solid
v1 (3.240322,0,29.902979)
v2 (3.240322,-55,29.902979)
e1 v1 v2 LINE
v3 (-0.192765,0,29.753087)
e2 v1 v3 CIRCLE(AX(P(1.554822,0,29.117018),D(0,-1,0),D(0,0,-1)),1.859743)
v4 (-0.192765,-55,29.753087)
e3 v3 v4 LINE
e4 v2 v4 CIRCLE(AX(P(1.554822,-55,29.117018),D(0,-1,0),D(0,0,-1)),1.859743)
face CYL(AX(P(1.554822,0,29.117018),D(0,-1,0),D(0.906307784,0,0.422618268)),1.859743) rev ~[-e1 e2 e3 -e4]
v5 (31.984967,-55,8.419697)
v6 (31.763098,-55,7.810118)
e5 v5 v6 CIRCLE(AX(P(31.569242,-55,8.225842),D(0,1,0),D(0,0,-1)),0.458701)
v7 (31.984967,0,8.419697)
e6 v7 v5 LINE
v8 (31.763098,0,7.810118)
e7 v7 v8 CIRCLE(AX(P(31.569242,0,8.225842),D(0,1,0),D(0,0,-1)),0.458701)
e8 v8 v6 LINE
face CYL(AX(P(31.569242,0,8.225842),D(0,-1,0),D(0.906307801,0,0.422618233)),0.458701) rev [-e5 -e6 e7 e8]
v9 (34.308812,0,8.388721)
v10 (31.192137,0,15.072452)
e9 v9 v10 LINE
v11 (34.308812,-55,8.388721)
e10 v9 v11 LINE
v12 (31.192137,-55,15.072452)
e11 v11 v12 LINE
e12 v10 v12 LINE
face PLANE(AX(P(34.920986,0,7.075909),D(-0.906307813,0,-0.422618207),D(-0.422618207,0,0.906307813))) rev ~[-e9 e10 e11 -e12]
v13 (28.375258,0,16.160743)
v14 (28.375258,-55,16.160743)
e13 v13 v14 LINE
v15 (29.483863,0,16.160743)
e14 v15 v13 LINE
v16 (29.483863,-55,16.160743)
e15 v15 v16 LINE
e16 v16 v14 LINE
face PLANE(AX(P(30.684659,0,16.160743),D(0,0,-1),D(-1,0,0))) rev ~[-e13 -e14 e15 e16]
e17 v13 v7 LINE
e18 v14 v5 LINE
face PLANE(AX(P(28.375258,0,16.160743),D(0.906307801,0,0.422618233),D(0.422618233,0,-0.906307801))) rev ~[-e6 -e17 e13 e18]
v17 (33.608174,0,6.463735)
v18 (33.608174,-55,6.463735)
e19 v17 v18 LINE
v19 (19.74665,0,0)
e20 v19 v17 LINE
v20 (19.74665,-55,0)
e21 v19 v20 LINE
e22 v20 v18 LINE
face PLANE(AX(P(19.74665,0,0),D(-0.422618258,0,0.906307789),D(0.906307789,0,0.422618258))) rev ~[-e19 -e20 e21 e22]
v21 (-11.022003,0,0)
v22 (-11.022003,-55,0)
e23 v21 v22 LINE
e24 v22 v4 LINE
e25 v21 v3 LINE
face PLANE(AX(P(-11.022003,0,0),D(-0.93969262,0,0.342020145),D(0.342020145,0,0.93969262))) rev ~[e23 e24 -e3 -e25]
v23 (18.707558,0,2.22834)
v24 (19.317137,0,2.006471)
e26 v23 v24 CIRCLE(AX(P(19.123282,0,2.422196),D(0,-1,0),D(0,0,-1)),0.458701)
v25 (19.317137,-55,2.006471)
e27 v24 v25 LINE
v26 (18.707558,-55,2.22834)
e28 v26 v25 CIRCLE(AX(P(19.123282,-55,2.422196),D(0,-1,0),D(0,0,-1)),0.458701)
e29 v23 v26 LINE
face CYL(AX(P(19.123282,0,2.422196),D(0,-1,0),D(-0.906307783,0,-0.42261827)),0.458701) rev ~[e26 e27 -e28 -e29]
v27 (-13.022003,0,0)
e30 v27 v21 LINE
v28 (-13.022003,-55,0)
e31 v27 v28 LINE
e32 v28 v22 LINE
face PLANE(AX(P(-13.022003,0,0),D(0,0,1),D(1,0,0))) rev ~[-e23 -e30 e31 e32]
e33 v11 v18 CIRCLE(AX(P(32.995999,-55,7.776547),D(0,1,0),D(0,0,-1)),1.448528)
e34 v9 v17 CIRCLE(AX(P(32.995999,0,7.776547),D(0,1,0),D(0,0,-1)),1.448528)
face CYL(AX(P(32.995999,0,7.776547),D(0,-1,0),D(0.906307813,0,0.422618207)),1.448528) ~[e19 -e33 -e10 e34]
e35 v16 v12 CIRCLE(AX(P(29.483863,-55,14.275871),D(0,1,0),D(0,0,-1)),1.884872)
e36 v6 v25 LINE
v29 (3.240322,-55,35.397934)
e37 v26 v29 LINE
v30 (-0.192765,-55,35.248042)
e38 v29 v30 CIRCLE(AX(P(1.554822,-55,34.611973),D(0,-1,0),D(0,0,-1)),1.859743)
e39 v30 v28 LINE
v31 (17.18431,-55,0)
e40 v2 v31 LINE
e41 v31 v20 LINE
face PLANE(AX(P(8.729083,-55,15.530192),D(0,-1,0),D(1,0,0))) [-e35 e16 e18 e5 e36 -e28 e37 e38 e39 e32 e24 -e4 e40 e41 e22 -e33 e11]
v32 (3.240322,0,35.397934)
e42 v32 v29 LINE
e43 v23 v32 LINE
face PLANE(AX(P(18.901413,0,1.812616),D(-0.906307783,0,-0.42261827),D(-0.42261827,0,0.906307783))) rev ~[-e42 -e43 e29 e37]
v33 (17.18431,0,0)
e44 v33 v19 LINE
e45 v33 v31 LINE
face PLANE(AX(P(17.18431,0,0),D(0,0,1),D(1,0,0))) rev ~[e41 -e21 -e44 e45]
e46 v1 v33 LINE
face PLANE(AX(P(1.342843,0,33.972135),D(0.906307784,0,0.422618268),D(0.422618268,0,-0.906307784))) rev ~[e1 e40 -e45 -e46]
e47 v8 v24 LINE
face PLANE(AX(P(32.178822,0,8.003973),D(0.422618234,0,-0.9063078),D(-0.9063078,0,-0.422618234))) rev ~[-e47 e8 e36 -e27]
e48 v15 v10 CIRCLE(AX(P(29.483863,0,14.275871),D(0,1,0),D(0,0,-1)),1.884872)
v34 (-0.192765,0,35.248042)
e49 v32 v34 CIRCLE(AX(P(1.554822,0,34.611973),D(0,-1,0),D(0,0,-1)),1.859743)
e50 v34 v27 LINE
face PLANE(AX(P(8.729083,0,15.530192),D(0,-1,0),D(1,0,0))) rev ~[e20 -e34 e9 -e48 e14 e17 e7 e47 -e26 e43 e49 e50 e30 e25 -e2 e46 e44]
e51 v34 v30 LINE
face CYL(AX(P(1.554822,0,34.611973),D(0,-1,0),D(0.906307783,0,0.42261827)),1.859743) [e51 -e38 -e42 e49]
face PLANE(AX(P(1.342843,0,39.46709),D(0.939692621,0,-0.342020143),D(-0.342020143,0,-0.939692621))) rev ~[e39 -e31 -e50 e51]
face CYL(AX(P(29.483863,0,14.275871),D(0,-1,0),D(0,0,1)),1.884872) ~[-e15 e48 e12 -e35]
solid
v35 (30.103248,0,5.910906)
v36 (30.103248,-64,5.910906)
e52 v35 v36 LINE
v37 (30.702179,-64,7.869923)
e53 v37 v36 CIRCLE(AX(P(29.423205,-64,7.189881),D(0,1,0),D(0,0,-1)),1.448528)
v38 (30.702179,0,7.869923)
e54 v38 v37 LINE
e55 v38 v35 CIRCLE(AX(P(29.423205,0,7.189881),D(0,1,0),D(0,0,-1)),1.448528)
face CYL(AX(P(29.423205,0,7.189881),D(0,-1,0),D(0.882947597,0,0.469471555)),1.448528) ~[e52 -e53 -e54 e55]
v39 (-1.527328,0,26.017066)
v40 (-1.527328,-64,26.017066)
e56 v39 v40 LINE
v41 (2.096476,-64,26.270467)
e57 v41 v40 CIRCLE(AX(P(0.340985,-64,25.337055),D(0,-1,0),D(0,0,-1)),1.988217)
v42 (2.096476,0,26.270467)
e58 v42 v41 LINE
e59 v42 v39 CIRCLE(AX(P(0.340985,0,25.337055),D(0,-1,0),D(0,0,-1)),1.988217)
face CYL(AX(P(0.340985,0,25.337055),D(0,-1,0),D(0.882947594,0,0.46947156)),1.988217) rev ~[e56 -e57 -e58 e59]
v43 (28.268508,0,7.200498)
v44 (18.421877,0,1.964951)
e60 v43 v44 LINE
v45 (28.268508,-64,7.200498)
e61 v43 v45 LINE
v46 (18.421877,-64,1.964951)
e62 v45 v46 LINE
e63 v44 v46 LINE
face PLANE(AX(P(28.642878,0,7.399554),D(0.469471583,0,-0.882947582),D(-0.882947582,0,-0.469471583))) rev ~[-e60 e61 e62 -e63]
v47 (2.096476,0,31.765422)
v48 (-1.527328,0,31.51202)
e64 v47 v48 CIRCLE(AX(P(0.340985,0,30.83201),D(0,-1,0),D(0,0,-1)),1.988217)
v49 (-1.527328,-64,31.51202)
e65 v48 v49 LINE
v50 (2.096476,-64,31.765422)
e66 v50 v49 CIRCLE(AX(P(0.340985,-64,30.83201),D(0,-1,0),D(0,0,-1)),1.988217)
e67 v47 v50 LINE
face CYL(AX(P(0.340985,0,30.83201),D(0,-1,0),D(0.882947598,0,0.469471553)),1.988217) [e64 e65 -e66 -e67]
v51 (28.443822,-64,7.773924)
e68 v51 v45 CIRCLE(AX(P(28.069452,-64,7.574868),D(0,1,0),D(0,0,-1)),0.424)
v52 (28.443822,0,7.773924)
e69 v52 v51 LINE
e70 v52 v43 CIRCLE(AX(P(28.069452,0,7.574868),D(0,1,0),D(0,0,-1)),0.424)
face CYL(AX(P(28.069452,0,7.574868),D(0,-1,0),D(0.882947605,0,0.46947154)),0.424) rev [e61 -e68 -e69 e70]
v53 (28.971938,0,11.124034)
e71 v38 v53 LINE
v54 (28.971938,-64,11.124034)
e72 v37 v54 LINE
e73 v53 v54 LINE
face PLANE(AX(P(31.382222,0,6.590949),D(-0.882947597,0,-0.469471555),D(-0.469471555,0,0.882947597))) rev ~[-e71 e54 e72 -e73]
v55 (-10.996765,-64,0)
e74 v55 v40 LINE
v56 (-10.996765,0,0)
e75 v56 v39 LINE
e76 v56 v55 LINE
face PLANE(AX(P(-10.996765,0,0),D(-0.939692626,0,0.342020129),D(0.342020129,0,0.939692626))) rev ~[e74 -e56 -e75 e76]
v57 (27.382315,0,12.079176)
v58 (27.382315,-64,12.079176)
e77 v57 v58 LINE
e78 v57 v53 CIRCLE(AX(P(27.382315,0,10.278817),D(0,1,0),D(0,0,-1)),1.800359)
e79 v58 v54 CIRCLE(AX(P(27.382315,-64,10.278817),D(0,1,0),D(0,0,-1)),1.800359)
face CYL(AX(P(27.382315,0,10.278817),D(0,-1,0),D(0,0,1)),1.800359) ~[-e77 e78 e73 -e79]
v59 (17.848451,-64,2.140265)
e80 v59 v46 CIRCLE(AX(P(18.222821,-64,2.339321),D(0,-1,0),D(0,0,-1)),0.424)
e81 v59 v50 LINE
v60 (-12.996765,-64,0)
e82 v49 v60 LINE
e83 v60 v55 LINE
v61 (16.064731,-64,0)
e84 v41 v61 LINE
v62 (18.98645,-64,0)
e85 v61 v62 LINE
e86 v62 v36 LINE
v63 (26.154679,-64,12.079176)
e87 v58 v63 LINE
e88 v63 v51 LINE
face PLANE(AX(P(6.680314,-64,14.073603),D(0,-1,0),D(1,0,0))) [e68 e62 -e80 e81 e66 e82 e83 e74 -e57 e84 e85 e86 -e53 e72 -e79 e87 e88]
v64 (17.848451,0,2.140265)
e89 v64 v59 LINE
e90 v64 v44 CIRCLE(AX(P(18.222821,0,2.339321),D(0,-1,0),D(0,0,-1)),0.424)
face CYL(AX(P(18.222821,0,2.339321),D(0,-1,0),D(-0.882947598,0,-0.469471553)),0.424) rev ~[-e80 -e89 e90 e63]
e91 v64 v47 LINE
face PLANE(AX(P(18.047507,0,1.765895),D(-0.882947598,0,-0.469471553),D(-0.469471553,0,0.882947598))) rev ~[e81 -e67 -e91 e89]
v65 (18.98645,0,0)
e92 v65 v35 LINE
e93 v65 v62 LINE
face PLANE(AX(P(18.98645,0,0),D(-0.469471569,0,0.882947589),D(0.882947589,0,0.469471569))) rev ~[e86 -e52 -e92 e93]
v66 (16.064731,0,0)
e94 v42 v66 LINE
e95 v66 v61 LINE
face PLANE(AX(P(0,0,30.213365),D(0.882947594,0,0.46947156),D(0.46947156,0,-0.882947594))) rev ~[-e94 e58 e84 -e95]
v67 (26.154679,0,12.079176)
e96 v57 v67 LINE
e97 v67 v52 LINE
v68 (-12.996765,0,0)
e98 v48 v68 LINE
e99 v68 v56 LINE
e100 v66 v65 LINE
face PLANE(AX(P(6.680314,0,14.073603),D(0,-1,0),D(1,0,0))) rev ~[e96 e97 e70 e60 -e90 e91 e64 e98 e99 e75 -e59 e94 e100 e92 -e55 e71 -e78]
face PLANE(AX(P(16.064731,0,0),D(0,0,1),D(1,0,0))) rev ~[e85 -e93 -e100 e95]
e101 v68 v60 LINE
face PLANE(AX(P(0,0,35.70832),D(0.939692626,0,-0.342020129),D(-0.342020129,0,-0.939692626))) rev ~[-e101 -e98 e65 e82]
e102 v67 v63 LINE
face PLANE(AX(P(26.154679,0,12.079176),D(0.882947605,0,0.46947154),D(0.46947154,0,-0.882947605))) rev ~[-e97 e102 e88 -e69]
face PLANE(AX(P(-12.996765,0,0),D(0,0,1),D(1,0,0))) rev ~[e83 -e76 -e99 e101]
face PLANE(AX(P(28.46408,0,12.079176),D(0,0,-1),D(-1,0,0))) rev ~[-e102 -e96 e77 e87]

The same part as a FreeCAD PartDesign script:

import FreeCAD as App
import Part
import Sketcher
Q = App.Units.Quantity


def edges_at(feature, points):
    """Names of the edges that pass closest to the given points."""
    edges = feature.Shape.Edges
    near = lambda p: min(range(len(edges)), key=lambda i: edges[i].distToShape(Part.Vertex(*p))[0])
    return sorted({f"Edge{near(p) + 1}" for p in points})

doc = App.newDocument("Part")
body = doc.addObject("PartDesign::Body", "Body")

sketch1 = doc.addObject("Sketcher::SketchObject", "Sketch")
body.addObject(sketch1)
sketch1.AttachmentSupport = (doc.XZ_Plane, [""])
sketch1.MapMode = "FlatFace"
sketch1.addGeometry(Part.LineSegment(App.Vector(0, 30.2, 0), App.Vector(16.1, 0, 0)), False)
sketch1.addGeometry(Part.LineSegment(App.Vector(16.1, 0, 0), App.Vector(19, 0, 0)), False)
sketch1.addGeometry(Part.LineSegment(App.Vector(19, 0, 0), App.Vector(31.4, 6.6, 0)), False)
sketch1.addGeometry(Part.LineSegment(App.Vector(31.4, 6.6, 0), App.Vector(28.5, 12.1, 0)), False)
sketch1.addGeometry(Part.LineSegment(App.Vector(28.5, 12.1, 0), App.Vector(26.2, 12.1, 0)), False)
sketch1.addGeometry(Part.LineSegment(App.Vector(26.2, 12.1, 0), App.Vector(28.6, 7.4, 0)), False)
sketch1.addGeometry(Part.LineSegment(App.Vector(28.6, 7.4, 0), App.Vector(18, 1.8, 0)), False)
sketch1.addGeometry(Part.LineSegment(App.Vector(18, 1.8, 0), App.Vector(0, 35.7, 0)), False)
sketch1.addGeometry(Part.LineSegment(App.Vector(0, 35.7, 0), App.Vector(-13, 0, 0)), False)
sketch1.addGeometry(Part.LineSegment(App.Vector(-13, 0, 0), App.Vector(-11, 0, 0)), False)
sketch1.addGeometry(Part.LineSegment(App.Vector(-11, 0, 0), App.Vector(0, 30.2, 0)), False)
sketch1.addConstraint(Sketcher.Constraint("Coincident", 0, 2, 1, 1))
sketch1.addConstraint(Sketcher.Constraint("Coincident", 1, 2, 2, 1))
sketch1.addConstraint(Sketcher.Constraint("Coincident", 2, 2, 3, 1))
sketch1.addConstraint(Sketcher.Constraint("Coincident", 3, 2, 4, 1))
sketch1.addConstraint(Sketcher.Constraint("Coincident", 4, 2, 5, 1))
sketch1.addConstraint(Sketcher.Constraint("Coincident", 5, 2, 6, 1))
sketch1.addConstraint(Sketcher.Constraint("Coincident", 6, 2, 7, 1))
sketch1.addConstraint(Sketcher.Constraint("Coincident", 7, 2, 8, 1))
sketch1.addConstraint(Sketcher.Constraint("Coincident", 8, 2, 9, 1))
sketch1.addConstraint(Sketcher.Constraint("Coincident", 9, 2, 10, 1))
sketch1.addConstraint(Sketcher.Constraint("Coincident", 10, 2, 0, 1))
sketch1.addConstraint(Sketcher.Constraint("Horizontal", 1))
sketch1.addConstraint(Sketcher.Constraint("Horizontal", 4))
sketch1.addConstraint(Sketcher.Constraint("Horizontal", 9))
sketch1.addConstraint(Sketcher.Constraint("PointOnObject", 0, 2, -1))
sketch1.addConstraint(Sketcher.Constraint("PointOnObject", 7, 2, -2))
sketch1.addConstraint(Sketcher.Constraint("PointOnObject", 8, 2, -1))
sketch1.addConstraint(Sketcher.Constraint("PointOnObject", 10, 2, -2))
sketch1.addConstraint(Sketcher.Constraint("Perpendicular", 0, 2))
sketch1.addConstraint(Sketcher.Constraint("Perpendicular", 2, 3))
sketch1.addConstraint(Sketcher.Constraint("Parallel", 3, 5))
sketch1.addConstraint(Sketcher.Constraint("Perpendicular", 5, 6))
sketch1.addConstraint(Sketcher.Constraint("Perpendicular", 6, 7))
sketch1.addConstraint(Sketcher.Constraint("Parallel", 8, 10))
sketch1.addConstraint(Sketcher.Constraint("DistanceX", 9, 1, 9, 2, Q("2 mm")))
sketch1.addConstraint(Sketcher.Constraint("Angle", 0, Q("-62 deg")))
sketch1.addConstraint(Sketcher.Constraint("Angle", 8, Q("-109.999999 deg")))
sketch1.addConstraint(Sketcher.Constraint("Distance", 6, Q("12 mm")))
sketch1.addConstraint(Sketcher.Constraint("Distance", 8, Q("38 mm")))
sketch1.addConstraint(Sketcher.Constraint("Distance", 5, Q("5.3 mm")))
sketch1.addConstraint(Sketcher.Constraint("DistanceX", 4, 2, 4, 1, Q("2.309401 mm")))
sketch1.addConstraint(Sketcher.Constraint("Distance", 3, Q("6.215802 mm")))
sketch1.addConstraint(Sketcher.Constraint("DistanceX", 1, 1, 1, 2, Q("2.921719 mm")))
pad1 = doc.addObject("PartDesign::Pad", "Pad")
body.addObject(pad1)
pad1.Profile = sketch1
pad1.Length = 64
doc.recompute()

fillet = doc.addObject("PartDesign::Fillet", "Fillet")
body.addObject(fillet)
fillet.Base = (pad1, edges_at(pad1, [(0, -32, 30.213), (0, -32, 35.708)]))
fillet.Radius = 1.988217
doc.recompute()

fillet2 = doc.addObject("PartDesign::Fillet", "Fillet001")
body.addObject(fillet2)
fillet2.Base = (fillet, edges_at(fillet, [(18.048, -32, 1.766), (28.643, -32, 7.4)]))
fillet2.Radius = 0.424
doc.recompute()

fillet3 = doc.addObject("PartDesign::Fillet", "Fillet002")
body.addObject(fillet3)
fillet3.Base = (fillet2, edges_at(fillet2, [(28.464, -32, 12.079)]))
fillet3.Radius = 1.800359
doc.recompute()

fillet4 = doc.addObject("PartDesign::Fillet", "Fillet003")
body.addObject(fillet4)
fillet4.Base = (fillet3, edges_at(fillet3, [(31.382, -32, 6.591)]))
fillet4.Radius = 1.448528
body2 = doc.addObject("PartDesign::Body", "Body001")

sketch2 = doc.addObject("Sketcher::SketchObject", "Sketch001")
body2.addObject(sketch2)
sketch2.AttachmentSupport = (doc.getObject("XZ_Plane001"), [""])
sketch2.MapMode = "FlatFace"
sketch2.addGeometry(Part.LineSegment(App.Vector(1.3, 34, 0), App.Vector(17.2, 0, 0)), False)
sketch2.addGeometry(Part.LineSegment(App.Vector(17.2, 0, 0), App.Vector(19.7, 0, 0)), False)
sketch2.addGeometry(Part.LineSegment(App.Vector(19.7, 0, 0), App.Vector(34.9, 7.1, 0)), False)
sketch2.addGeometry(Part.LineSegment(App.Vector(34.9, 7.1, 0), App.Vector(30.7, 16.2, 0)), False)
sketch2.addGeometry(Part.LineSegment(App.Vector(30.7, 16.2, 0), App.Vector(28.4, 16.2, 0)), False)
sketch2.addGeometry(Part.LineSegment(App.Vector(28.4, 16.2, 0), App.Vector(32.2, 8, 0)), False)
sketch2.addGeometry(Part.LineSegment(App.Vector(32.2, 8, 0), App.Vector(18.9, 1.8, 0)), False)
sketch2.addGeometry(Part.LineSegment(App.Vector(18.9, 1.8, 0), App.Vector(1.3, 39.5, 0)), False)
sketch2.addGeometry(Part.LineSegment(App.Vector(1.3, 39.5, 0), App.Vector(-13, 0, 0)), False)
sketch2.addGeometry(Part.LineSegment(App.Vector(-13, 0, 0), App.Vector(-11, 0, 0)), False)
sketch2.addGeometry(Part.LineSegment(App.Vector(-11, 0, 0), App.Vector(1.3, 34, 0)), False)
sketch2.addConstraint(Sketcher.Constraint("Coincident", 0, 2, 1, 1))
sketch2.addConstraint(Sketcher.Constraint("Coincident", 1, 2, 2, 1))
sketch2.addConstraint(Sketcher.Constraint("Coincident", 2, 2, 3, 1))
sketch2.addConstraint(Sketcher.Constraint("Coincident", 3, 2, 4, 1))
sketch2.addConstraint(Sketcher.Constraint("Coincident", 4, 2, 5, 1))
sketch2.addConstraint(Sketcher.Constraint("Coincident", 5, 2, 6, 1))
sketch2.addConstraint(Sketcher.Constraint("Coincident", 6, 2, 7, 1))
sketch2.addConstraint(Sketcher.Constraint("Coincident", 7, 2, 8, 1))
sketch2.addConstraint(Sketcher.Constraint("Coincident", 8, 2, 9, 1))
sketch2.addConstraint(Sketcher.Constraint("Coincident", 9, 2, 10, 1))
sketch2.addConstraint(Sketcher.Constraint("Coincident", 10, 2, 0, 1))
sketch2.addConstraint(Sketcher.Constraint("Horizontal", 1))
sketch2.addConstraint(Sketcher.Constraint("Horizontal", 4))
sketch2.addConstraint(Sketcher.Constraint("Horizontal", 9))
sketch2.addConstraint(Sketcher.Constraint("PointOnObject", 0, 2, -1))
sketch2.addConstraint(Sketcher.Constraint("PointOnObject", 8, 2, -1))
sketch2.addConstraint(Sketcher.Constraint("Perpendicular", 0, 2))
sketch2.addConstraint(Sketcher.Constraint("Perpendicular", 2, 3))
sketch2.addConstraint(Sketcher.Constraint("Parallel", 3, 5))
sketch2.addConstraint(Sketcher.Constraint("Perpendicular", 5, 6))
sketch2.addConstraint(Sketcher.Constraint("Perpendicular", 6, 7))
sketch2.addConstraint(Sketcher.Constraint("Parallel", 8, 10))
sketch2.addConstraint(Sketcher.Constraint("Vertical", 7, 2, 10, 2))
sketch2.addConstraint(Sketcher.Constraint("DistanceX", 9, 1, 9, 2, Q("2 mm")))
sketch2.addConstraint(Sketcher.Constraint("Angle", 0, Q("-65 deg")))
sketch2.addConstraint(Sketcher.Constraint("Angle", 8, Q("-110 deg")))
sketch2.addConstraint(Sketcher.Constraint("Distance", 5, Q("9 mm")))
sketch2.addConstraint(Sketcher.Constraint("Distance", 8, Q("42 mm")))
sketch2.addConstraint(Sketcher.Constraint("Distance", 6, Q("14.65 mm")))
sketch2.addConstraint(Sketcher.Constraint("DistanceX", 4, 2, 4, 1, Q("2.309401 mm")))
sketch2.addConstraint(Sketcher.Constraint("DistanceX", 1, 1, 1, 2, Q("2.56234 mm")))
sketch2.addConstraint(Sketcher.Constraint("DistanceX", -1, 1, 0, 2, Q("17.18431 mm")))
sketch2.addConstraint(Sketcher.Constraint("DistanceX", -1, 1, 3, 2, Q("30.684659 mm")))
pad2 = doc.addObject("PartDesign::Pad", "Pad001")
body2.addObject(pad2)
pad2.Profile = sketch2
pad2.Length = 55
doc.recompute()

fillet5 = doc.addObject("PartDesign::Fillet", "Fillet004")
body2.addObject(fillet5)
fillet5.Base = (pad2, edges_at(pad2, [(1.343, -27.5, 39.467), (1.343, -27.5, 33.972)]))
fillet5.Radius = 1.859743
doc.recompute()

fillet6 = doc.addObject("PartDesign::Fillet", "Fillet005")
body2.addObject(fillet6)
fillet6.Base = (fillet5, edges_at(fillet5, [(18.901, -27.5, 1.813), (32.179, -27.5, 8.004)]))
fillet6.Radius = 0.458701
doc.recompute()

fillet7 = doc.addObject("PartDesign::Fillet", "Fillet006")
body2.addObject(fillet7)
fillet7.Base = (fillet6, edges_at(fillet6, [(30.685, -27.5, 16.161)]))
fillet7.Radius = 1.884872
doc.recompute()

fillet8 = doc.addObject("PartDesign::Fillet", "Fillet007")
body2.addObject(fillet8)
fillet8.Base = (fillet7, edges_at(fillet7, [(34.921, -27.5, 7.076)]))
fillet8.Radius = 1.448528

doc.recompute()
